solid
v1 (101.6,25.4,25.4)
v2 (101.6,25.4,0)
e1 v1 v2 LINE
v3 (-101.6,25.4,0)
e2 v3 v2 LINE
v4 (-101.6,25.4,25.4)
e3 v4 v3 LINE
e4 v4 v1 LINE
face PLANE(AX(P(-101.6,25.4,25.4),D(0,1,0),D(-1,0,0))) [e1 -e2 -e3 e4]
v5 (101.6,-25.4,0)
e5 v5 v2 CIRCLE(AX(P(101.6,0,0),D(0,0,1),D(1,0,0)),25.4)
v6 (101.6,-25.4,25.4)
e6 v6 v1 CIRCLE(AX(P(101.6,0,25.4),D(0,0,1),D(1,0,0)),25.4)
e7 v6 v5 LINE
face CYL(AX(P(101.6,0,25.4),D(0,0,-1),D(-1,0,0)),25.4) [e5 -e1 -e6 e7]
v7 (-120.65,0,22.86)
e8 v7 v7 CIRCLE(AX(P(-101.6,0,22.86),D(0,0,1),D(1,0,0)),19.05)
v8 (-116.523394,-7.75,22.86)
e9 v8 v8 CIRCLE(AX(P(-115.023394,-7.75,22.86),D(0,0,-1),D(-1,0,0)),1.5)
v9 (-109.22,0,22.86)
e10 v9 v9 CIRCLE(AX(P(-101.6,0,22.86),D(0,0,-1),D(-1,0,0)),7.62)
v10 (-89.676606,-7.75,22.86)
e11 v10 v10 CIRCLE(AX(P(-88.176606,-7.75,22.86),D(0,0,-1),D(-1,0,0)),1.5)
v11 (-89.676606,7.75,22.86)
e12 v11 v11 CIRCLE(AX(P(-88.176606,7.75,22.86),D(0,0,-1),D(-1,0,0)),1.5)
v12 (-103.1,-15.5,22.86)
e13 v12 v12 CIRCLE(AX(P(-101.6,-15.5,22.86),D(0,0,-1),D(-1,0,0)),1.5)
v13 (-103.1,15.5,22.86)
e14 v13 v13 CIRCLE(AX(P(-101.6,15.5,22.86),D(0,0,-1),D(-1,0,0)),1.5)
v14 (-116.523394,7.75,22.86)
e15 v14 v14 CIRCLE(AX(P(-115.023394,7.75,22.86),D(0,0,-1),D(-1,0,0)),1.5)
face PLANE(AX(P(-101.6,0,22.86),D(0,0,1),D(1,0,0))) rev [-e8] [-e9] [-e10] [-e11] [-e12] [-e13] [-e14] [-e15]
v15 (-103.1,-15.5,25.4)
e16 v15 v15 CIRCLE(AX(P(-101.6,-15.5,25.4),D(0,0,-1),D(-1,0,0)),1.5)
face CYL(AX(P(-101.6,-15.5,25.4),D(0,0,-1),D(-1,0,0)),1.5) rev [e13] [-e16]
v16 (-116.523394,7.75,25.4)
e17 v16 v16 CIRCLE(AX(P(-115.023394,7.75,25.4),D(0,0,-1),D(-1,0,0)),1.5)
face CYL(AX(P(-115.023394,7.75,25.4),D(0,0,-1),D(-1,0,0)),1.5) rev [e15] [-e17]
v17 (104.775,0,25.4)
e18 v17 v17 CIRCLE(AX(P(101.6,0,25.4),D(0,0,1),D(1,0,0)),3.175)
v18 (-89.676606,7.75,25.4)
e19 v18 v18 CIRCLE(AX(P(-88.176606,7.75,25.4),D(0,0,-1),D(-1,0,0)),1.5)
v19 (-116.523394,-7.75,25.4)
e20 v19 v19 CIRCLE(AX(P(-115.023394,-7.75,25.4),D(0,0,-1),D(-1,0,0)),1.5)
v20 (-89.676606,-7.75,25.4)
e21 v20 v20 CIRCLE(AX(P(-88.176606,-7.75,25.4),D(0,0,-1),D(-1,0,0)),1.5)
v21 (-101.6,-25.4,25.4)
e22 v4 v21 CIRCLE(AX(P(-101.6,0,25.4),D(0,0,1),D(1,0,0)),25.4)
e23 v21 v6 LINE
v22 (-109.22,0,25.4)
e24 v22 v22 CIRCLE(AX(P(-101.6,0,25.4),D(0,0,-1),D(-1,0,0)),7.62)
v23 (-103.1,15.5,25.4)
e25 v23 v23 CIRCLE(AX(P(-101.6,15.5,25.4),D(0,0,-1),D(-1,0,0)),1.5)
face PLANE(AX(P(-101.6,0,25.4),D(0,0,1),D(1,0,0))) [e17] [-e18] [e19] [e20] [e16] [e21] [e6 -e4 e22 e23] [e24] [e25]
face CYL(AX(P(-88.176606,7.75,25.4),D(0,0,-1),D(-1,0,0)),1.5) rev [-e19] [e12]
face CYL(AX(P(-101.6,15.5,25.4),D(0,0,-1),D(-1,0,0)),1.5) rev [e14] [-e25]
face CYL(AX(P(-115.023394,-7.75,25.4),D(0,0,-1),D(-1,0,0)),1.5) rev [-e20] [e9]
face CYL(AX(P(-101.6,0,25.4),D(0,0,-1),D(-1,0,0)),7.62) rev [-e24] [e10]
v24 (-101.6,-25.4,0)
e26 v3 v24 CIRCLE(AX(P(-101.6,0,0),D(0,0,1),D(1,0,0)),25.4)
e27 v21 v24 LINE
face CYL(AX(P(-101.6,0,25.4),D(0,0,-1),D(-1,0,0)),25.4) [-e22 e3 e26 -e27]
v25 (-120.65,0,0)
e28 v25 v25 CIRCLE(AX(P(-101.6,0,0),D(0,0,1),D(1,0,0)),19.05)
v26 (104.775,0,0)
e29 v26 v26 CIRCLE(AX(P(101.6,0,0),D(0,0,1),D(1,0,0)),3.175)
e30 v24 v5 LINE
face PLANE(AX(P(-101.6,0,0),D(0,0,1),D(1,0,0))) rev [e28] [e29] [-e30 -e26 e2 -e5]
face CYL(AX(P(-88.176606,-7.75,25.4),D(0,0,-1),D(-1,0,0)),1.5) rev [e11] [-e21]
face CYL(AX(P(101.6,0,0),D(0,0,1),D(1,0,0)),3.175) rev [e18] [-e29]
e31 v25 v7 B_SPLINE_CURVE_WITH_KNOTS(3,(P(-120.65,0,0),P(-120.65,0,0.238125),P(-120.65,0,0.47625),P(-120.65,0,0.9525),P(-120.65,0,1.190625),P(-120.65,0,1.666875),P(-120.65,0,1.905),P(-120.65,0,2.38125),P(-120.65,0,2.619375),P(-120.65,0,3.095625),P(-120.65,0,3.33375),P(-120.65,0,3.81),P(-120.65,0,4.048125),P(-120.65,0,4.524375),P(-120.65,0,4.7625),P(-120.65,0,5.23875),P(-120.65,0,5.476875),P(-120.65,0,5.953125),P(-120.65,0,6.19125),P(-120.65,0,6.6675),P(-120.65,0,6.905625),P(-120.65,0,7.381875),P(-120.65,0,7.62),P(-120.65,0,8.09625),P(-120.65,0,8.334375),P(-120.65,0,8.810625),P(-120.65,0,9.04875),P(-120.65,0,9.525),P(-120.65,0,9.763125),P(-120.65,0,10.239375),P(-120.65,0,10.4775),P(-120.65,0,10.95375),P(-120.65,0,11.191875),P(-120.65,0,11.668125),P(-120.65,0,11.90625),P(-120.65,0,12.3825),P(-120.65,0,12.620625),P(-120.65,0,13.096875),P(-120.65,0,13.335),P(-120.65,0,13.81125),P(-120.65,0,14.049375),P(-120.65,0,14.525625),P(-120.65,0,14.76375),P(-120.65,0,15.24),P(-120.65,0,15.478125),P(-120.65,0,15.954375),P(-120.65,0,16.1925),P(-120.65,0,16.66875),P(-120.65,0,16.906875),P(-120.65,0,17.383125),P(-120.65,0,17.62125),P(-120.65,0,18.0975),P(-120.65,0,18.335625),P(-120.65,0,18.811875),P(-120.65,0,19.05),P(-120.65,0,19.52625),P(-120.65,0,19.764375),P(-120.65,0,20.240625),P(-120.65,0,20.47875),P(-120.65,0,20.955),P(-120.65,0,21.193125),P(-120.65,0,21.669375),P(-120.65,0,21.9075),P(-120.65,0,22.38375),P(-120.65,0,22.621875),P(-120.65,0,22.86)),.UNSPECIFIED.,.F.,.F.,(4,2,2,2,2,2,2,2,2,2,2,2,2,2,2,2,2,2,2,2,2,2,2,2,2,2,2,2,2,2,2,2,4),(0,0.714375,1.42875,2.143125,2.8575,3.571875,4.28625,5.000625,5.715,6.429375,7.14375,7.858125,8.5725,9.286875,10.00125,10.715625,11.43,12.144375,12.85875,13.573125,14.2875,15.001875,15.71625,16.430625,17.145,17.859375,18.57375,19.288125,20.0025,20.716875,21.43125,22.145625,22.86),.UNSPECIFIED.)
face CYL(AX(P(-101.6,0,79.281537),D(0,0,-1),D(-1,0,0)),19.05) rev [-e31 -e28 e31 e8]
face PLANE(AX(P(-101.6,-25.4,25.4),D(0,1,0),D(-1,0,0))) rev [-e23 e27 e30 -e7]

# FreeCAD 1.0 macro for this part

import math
import FreeCAD as App
import Part
import Sketcher
Q = App.Units.Quantity

doc = App.newDocument("Part")
body = doc.addObject("PartDesign::Body", "Body")

# Sketch on XY plane
sketch1 = body.newObject("Sketcher::SketchObject", "Sketch")
sketch1.AttachmentSupport = (doc.getObject("XY_Plane"), [""])
sketch1.MapMode = "FlatFace"
sketch1.addGeometry([
    Part.LineSegment(App.Vector(-102, -25, 0), App.Vector(102, -25, 0)),
    Part.ArcOfCircle(Part.Circle(App.Vector(102, 0, 0), App.Vector(0, 0, 1), 25), math.radians(-90), math.radians(90)),
    Part.LineSegment(App.Vector(102, 25, 0), App.Vector(-102, 25, 0)),
    Part.ArcOfCircle(Part.Circle(App.Vector(-102, 0, 0), App.Vector(0, 0, 1), 25), math.radians(90), math.radians(270)),
], False)
sketch1.addConstraint([
    Sketcher.Constraint("Tangent", 0, 2, 1, 1),
    Sketcher.Constraint("Tangent", 1, 2, 2, 1),
    Sketcher.Constraint("Tangent", 2, 2, 3, 1),
    Sketcher.Constraint("Tangent", 3, 2, 0, 1),
    Sketcher.Constraint("Horizontal", 0),
    Sketcher.Constraint("Horizontal", 2),
    Sketcher.Constraint("Symmetric", 1, 3, 3, 3, -1, 1),
    Sketcher.Constraint("Radius", 1, Q("1 in")),
    Sketcher.Constraint("DistanceX", 0, 1, 0, 2, Q("8 in")),
])
pad1 = body.newObject("PartDesign::Pad", "Pad")
pad1.Profile = sketch1
pad1.Length = Q("1 in")

# Sketch on XY plane
sketch2 = body.newObject("Sketcher::SketchObject", "Sketch001")
sketch2.AttachmentSupport = (doc.getObject("XY_Plane"), [""])
sketch2.MapMode = "FlatFace"
sketch2.addGeometry(Part.Circle(App.Vector(-102, 0, 0), App.Vector(0, 0, 1), 19), False)
sketch2.addConstraint([
    Sketcher.Constraint("PointOnObject", 0, 3, -1),
    Sketcher.Constraint("Diameter", 0, Q("1.5 in")),
    Sketcher.Constraint("DistanceX", 0, 3, -1, 1, Q("4 in")),
])
pocket1 = body.newObject("PartDesign::Pocket", "Pocket")
pocket1.Profile = sketch2
pocket1.Length = Q("0.9 in")
pocket1.Reversed = True

# Sketch on XY plane
sketch3 = body.newObject("Sketcher::SketchObject", "Sketch002")
sketch3.AttachmentSupport = (doc.getObject("XY_Plane"), [""])
sketch3.MapMode = "FlatFace"
sketch3.AttachmentOffset = App.Placement(App.Vector(0, 0, 0.9 * 25.4), App.Rotation())
sketch3.addGeometry([
    Part.Circle(App.Vector(-101.6, 0, 0), App.Vector(0, 0, 1), 7.6),  # 0
    Part.Circle(App.Vector(-101.6, 15.5, 0), App.Vector(0, 0, 1), 1.5),  # 1
    Part.Circle(App.Vector(-115, 7.7, 0), App.Vector(0, 0, 1), 1.5),  # 2
    Part.Circle(App.Vector(-115, -7.7, 0), App.Vector(0, 0, 1), 1.5),  # 3
    Part.Circle(App.Vector(-101.6, -15.5, 0), App.Vector(0, 0, 1), 1.5),  # 4
    Part.Circle(App.Vector(-88.2, -7.7, 0), App.Vector(0, 0, 1), 1.5),  # 5
    Part.Circle(App.Vector(-88.2, 7.7, 0), App.Vector(0, 0, 1), 1.5),  # 6
], False)
sketch3.addConstraint([
    Sketcher.Constraint("Equal", 1, 2),
    Sketcher.Constraint("Equal", 2, 3),
    Sketcher.Constraint("Equal", 3, 4),
    Sketcher.Constraint("Equal", 4, 5),
    Sketcher.Constraint("Equal", 5, 6),
    Sketcher.Constraint("Symmetric", 2, 3, 3, 3, -1),
    Sketcher.Constraint("Symmetric", 1, 3, 4, 3, -1),
    Sketcher.Constraint("Symmetric", 5, 3, 6, 3, -1),
    Sketcher.Constraint("PointOnObject", 0, 3, -1),
    Sketcher.Constraint("Horizontal", 3, 3, 5, 3),
    Sketcher.Constraint("Vertical", 0, 3, 1, 3),
    Sketcher.Constraint("Diameter", 0, Q("0.6 in")),
    Sketcher.Constraint("DistanceX", 0, 3, -1, 1, Q("4 in")),
    Sketcher.Constraint("Diameter", 1, 3.0),
    Sketcher.Constraint("DistanceY", -1, 1, 1, 3, 15.5),
    Sketcher.Constraint("DistanceY", -1, 1, 2, 3, 7.75),
    Sketcher.Constraint("DistanceX", 2, 3, -1, 1, 115.023394),
    Sketcher.Constraint("DistanceX", 5, 3, -1, 1, 88.176606),
])
pocket2 = body.newObject("PartDesign::Pocket", "Pocket001")
pocket2.Profile = sketch3
pocket2.Type = "ThroughAll"
pocket2.Reversed = True

# Sketch on XY plane
sketch4 = body.newObject("Sketcher::SketchObject", "Sketch003")
sketch4.AttachmentSupport = (doc.getObject("XY_Plane"), [""])
sketch4.MapMode = "FlatFace"
sketch4.AttachmentOffset = App.Placement(App.Vector(0, 0, 1 * 25.4), App.Rotation())
sketch4.addGeometry(Part.Circle(App.Vector(101.6, 0, 0), App.Vector(0, 0, 1), 3.2), False)
sketch4.addConstraint([
    Sketcher.Constraint("PointOnObject", 0, 3, -1),
    Sketcher.Constraint("Diameter", 0, Q("0.25 in")),
    Sketcher.Constraint("DistanceX", -1, 1, 0, 3, Q("4 in")),
])
pocket3 = body.newObject("PartDesign::Pocket", "Pocket002")
pocket3.Profile = sketch4
pocket3.Type = "ThroughAll"

doc.recompute()
